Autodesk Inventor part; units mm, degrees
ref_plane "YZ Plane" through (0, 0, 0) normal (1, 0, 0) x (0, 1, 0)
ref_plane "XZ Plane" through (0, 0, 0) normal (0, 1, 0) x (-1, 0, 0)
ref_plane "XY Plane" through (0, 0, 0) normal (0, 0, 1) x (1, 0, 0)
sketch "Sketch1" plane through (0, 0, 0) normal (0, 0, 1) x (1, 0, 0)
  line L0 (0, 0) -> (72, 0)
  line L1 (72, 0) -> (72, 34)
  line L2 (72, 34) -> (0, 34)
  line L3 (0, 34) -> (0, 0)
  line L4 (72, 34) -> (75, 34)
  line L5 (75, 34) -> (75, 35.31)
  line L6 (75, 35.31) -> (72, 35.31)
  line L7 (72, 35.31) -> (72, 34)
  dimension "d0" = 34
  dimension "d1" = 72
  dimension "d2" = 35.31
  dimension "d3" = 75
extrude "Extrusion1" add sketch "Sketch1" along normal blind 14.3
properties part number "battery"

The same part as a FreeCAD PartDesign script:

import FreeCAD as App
import Part
import Sketcher
Q = App.Units.Quantity


def add_polygon(sketch, points):
    """Adds a closed chain of lines whose ends are joined by coincident constraints."""
    first, n = sketch.GeometryCount, len(points)
    for a, b in zip(points, points[1:] + points[:1]):
        sketch.addGeometry(Part.LineSegment(App.Vector(*a, 0), App.Vector(*b, 0)), False)
    for i in range(n):
        sketch.addConstraint(Sketcher.Constraint("Coincident", first + i, 2, first + (i + 1) % n, 1))

doc = App.newDocument("Part")
params = doc.addObject("Spreadsheet::Sheet", "Params")
for row, (alias, value) in enumerate([
    ("sketch1_width", "72 mm"),
    ("sketch1_height", "34 mm"),
    ("pad1_length", "14.3 mm"),
], start=1):
    params.set(f"A{row}", alias)
    params.set(f"B{row}", "=" + value)
    params.setAlias(f"B{row}", alias)

body = doc.addObject("PartDesign::Body", "Body")
body.AllowCompound = True

sketch1 = body.newObject("Sketcher::SketchObject", "Sketch")
sketch1.AttachmentSupport = (doc.getObject("XY_Plane"), [""])
sketch1.MapMode = "FlatFace"
add_polygon(sketch1, [(0, 34), (0, 0), (72, 0), (72, 34)])
add_polygon(sketch1, [(72, 35.3), (72, 34), (75, 34), (75, 35.3)])
sketch1.addConstraint(Sketcher.Constraint("Vertical", 0))
sketch1.addConstraint(Sketcher.Constraint("Horizontal", 1))
sketch1.addConstraint(Sketcher.Constraint("Vertical", 2))
sketch1.addConstraint(Sketcher.Constraint("Horizontal", 3))
sketch1.addConstraint(Sketcher.Constraint("Vertical", 4))
sketch1.addConstraint(Sketcher.Constraint("Horizontal", 5))
sketch1.addConstraint(Sketcher.Constraint("Vertical", 6))
sketch1.addConstraint(Sketcher.Constraint("Horizontal", 7))
sketch1.addConstraint(Sketcher.Constraint("Coincident", 0, 2, -1, 1))
sketch1.addConstraint(Sketcher.Constraint("Coincident", 4, 2, 2, 2))
sketch1.addConstraint(Sketcher.Constraint("DistanceX", 1, 1, 1, 2, Q("72 mm")))
sketch1.addConstraint(Sketcher.Constraint("DistanceY", 0, 2, 0, 1, Q("34 mm")))
sketch1.addConstraint(Sketcher.Constraint("DistanceX", -1, 1, 5, 2, Q("75 mm")))
sketch1.addConstraint(Sketcher.Constraint("DistanceY", -1, 1, 6, 2, Q("35.31 mm")))
sketch1.setExpression("Constraints[18]", "Params.sketch1_width")
sketch1.setExpression("Constraints[19]", "Params.sketch1_height")
pad1 = body.newObject("PartDesign::Pad", "Pad")
pad1.Profile = sketch1
pad1.setExpression("Length", "Params.pad1_length")

doc.recompute()
